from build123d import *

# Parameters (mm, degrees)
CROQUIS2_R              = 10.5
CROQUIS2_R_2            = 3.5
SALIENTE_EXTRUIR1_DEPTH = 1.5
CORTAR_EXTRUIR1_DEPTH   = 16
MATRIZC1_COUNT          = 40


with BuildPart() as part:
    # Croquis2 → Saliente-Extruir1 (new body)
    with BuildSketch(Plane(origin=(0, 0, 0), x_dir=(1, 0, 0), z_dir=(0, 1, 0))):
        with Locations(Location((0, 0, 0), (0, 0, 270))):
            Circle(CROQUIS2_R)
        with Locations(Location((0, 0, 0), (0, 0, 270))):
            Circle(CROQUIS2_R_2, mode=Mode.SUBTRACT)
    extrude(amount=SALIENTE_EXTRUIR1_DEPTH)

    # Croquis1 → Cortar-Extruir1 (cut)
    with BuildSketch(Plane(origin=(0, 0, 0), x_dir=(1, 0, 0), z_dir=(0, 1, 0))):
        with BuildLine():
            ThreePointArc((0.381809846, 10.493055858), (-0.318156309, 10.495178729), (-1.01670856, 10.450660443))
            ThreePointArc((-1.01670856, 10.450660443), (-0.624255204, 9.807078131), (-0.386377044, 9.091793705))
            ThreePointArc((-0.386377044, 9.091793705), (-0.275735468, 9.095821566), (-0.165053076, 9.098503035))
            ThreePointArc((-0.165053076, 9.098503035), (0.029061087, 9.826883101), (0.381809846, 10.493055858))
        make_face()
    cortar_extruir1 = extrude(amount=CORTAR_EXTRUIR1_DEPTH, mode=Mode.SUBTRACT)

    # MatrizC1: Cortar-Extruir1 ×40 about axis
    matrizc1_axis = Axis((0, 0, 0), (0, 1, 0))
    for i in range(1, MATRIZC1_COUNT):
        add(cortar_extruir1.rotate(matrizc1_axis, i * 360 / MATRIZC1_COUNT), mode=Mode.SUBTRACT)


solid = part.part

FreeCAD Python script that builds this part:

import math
import FreeCAD as App
import Part
import Sketcher

V = App.Vector

doc = App.newDocument("Part")
body = doc.addObject("PartDesign::Body", "Body")

# Sketch on XZ plane
sketch1 = doc.addObject("Sketcher::SketchObject", "Sketch")
body.addObject(sketch1)
sketch1.AttachmentSupport = (doc.XZ_Plane, [""])
sketch1.MapMode = "FlatFace"
sketch1.addGeometry([
    Part.Circle(V(0, 0, 0), V(0, 0, 1), 10.5),
    Part.Circle(V(0, 0, 0), V(0, 0, 1), 3.5),
], False)
sketch1.addConstraint([
    Sketcher.Constraint("Coincident", 0, 3, -1, 1),
    Sketcher.Constraint("Coincident", 1, 3, -1, 1),
    Sketcher.Constraint("Diameter", 0, 21.0),
    Sketcher.Constraint("Diameter", 1, 7.0),
])
pad1 = doc.addObject("PartDesign::Pad", "Pad")
body.addObject(pad1)
pad1.Profile = sketch1
pad1.Length = 1.5
pad1.Reversed = True

# Sketch on XZ plane
sketch2 = doc.addObject("Sketcher::SketchObject", "Sketch001")
body.addObject(sketch2)
sketch2.AttachmentSupport = (doc.XZ_Plane, [""])
sketch2.MapMode = "FlatFace"
sketch2.addGeometry([
    Part.ArcOfCircle(Part.Circle(V(0, 0, 0), V(0, 0, 1), 10.5), math.radians(-95.56), math.radians(-87.92)),
    Part.ArcOfCircle(Part.Circle(V(-3.65, -8.4, 0), V(0, 0, 1), 3.33), math.radians(-38), math.radians(-12)),
    Part.ArcOfCircle(Part.Circle(V(0, 0, 0), V(0, 0, 1), 9.1), math.radians(-92.43), math.radians(-91.04)),
    Part.ArcOfCircle(Part.Circle(V(3.13, -8.61, 0), V(0, 0, 1), 3.33), math.radians(-172), math.radians(-146)),
], False)
sketch2.addConstraint([
    Sketcher.Constraint("Coincident", 0, 1, 1, 1),
    Sketcher.Constraint("Coincident", 1, 2, 2, 1),
    Sketcher.Constraint("Coincident", 2, 2, 3, 1),
    Sketcher.Constraint("Coincident", 3, 2, 0, 2),
    Sketcher.Constraint("Coincident", 0, 3, -1, 1),
    Sketcher.Constraint("Equal", 1, 3),
    Sketcher.Constraint("PointOnObject", 2, 3, -2),
    Sketcher.Constraint("Radius", 0, 10.5),
    Sketcher.Constraint("Radius", 2, 9.09999),
    Sketcher.Constraint("Radius", 1, 3.334696),
    Sketcher.Constraint("DistanceX", 0, 1, 3, 3, 4.150298),
    Sketcher.Constraint("DistanceX", 1, 3, -1, 1, 3.64934),
    Sketcher.Constraint("DistanceX", -1, 1, 3, 3, 3.13359),
    Sketcher.Constraint("DistanceX", -1, 1, 3, 2, 0.38181),
    Sketcher.Constraint("DistanceY", 0, 1, 2, 3, 10.45065),
])
pocket1 = doc.addObject("PartDesign::Pocket", "Pocket")
body.addObject(pocket1)
pocket1.Profile = sketch2
pocket1.Length = 16
doc.recompute()

polarpattern = doc.addObject("PartDesign::PolarPattern", "PolarPattern")
body.addObject(polarpattern)
polarpattern.Originals = [pocket1]
polarpattern.Axis = (doc.Y_Axis, [""])
polarpattern.Angle = 360
polarpattern.Occurrences = 40
body.Tip = polarpattern

doc.recompute()
